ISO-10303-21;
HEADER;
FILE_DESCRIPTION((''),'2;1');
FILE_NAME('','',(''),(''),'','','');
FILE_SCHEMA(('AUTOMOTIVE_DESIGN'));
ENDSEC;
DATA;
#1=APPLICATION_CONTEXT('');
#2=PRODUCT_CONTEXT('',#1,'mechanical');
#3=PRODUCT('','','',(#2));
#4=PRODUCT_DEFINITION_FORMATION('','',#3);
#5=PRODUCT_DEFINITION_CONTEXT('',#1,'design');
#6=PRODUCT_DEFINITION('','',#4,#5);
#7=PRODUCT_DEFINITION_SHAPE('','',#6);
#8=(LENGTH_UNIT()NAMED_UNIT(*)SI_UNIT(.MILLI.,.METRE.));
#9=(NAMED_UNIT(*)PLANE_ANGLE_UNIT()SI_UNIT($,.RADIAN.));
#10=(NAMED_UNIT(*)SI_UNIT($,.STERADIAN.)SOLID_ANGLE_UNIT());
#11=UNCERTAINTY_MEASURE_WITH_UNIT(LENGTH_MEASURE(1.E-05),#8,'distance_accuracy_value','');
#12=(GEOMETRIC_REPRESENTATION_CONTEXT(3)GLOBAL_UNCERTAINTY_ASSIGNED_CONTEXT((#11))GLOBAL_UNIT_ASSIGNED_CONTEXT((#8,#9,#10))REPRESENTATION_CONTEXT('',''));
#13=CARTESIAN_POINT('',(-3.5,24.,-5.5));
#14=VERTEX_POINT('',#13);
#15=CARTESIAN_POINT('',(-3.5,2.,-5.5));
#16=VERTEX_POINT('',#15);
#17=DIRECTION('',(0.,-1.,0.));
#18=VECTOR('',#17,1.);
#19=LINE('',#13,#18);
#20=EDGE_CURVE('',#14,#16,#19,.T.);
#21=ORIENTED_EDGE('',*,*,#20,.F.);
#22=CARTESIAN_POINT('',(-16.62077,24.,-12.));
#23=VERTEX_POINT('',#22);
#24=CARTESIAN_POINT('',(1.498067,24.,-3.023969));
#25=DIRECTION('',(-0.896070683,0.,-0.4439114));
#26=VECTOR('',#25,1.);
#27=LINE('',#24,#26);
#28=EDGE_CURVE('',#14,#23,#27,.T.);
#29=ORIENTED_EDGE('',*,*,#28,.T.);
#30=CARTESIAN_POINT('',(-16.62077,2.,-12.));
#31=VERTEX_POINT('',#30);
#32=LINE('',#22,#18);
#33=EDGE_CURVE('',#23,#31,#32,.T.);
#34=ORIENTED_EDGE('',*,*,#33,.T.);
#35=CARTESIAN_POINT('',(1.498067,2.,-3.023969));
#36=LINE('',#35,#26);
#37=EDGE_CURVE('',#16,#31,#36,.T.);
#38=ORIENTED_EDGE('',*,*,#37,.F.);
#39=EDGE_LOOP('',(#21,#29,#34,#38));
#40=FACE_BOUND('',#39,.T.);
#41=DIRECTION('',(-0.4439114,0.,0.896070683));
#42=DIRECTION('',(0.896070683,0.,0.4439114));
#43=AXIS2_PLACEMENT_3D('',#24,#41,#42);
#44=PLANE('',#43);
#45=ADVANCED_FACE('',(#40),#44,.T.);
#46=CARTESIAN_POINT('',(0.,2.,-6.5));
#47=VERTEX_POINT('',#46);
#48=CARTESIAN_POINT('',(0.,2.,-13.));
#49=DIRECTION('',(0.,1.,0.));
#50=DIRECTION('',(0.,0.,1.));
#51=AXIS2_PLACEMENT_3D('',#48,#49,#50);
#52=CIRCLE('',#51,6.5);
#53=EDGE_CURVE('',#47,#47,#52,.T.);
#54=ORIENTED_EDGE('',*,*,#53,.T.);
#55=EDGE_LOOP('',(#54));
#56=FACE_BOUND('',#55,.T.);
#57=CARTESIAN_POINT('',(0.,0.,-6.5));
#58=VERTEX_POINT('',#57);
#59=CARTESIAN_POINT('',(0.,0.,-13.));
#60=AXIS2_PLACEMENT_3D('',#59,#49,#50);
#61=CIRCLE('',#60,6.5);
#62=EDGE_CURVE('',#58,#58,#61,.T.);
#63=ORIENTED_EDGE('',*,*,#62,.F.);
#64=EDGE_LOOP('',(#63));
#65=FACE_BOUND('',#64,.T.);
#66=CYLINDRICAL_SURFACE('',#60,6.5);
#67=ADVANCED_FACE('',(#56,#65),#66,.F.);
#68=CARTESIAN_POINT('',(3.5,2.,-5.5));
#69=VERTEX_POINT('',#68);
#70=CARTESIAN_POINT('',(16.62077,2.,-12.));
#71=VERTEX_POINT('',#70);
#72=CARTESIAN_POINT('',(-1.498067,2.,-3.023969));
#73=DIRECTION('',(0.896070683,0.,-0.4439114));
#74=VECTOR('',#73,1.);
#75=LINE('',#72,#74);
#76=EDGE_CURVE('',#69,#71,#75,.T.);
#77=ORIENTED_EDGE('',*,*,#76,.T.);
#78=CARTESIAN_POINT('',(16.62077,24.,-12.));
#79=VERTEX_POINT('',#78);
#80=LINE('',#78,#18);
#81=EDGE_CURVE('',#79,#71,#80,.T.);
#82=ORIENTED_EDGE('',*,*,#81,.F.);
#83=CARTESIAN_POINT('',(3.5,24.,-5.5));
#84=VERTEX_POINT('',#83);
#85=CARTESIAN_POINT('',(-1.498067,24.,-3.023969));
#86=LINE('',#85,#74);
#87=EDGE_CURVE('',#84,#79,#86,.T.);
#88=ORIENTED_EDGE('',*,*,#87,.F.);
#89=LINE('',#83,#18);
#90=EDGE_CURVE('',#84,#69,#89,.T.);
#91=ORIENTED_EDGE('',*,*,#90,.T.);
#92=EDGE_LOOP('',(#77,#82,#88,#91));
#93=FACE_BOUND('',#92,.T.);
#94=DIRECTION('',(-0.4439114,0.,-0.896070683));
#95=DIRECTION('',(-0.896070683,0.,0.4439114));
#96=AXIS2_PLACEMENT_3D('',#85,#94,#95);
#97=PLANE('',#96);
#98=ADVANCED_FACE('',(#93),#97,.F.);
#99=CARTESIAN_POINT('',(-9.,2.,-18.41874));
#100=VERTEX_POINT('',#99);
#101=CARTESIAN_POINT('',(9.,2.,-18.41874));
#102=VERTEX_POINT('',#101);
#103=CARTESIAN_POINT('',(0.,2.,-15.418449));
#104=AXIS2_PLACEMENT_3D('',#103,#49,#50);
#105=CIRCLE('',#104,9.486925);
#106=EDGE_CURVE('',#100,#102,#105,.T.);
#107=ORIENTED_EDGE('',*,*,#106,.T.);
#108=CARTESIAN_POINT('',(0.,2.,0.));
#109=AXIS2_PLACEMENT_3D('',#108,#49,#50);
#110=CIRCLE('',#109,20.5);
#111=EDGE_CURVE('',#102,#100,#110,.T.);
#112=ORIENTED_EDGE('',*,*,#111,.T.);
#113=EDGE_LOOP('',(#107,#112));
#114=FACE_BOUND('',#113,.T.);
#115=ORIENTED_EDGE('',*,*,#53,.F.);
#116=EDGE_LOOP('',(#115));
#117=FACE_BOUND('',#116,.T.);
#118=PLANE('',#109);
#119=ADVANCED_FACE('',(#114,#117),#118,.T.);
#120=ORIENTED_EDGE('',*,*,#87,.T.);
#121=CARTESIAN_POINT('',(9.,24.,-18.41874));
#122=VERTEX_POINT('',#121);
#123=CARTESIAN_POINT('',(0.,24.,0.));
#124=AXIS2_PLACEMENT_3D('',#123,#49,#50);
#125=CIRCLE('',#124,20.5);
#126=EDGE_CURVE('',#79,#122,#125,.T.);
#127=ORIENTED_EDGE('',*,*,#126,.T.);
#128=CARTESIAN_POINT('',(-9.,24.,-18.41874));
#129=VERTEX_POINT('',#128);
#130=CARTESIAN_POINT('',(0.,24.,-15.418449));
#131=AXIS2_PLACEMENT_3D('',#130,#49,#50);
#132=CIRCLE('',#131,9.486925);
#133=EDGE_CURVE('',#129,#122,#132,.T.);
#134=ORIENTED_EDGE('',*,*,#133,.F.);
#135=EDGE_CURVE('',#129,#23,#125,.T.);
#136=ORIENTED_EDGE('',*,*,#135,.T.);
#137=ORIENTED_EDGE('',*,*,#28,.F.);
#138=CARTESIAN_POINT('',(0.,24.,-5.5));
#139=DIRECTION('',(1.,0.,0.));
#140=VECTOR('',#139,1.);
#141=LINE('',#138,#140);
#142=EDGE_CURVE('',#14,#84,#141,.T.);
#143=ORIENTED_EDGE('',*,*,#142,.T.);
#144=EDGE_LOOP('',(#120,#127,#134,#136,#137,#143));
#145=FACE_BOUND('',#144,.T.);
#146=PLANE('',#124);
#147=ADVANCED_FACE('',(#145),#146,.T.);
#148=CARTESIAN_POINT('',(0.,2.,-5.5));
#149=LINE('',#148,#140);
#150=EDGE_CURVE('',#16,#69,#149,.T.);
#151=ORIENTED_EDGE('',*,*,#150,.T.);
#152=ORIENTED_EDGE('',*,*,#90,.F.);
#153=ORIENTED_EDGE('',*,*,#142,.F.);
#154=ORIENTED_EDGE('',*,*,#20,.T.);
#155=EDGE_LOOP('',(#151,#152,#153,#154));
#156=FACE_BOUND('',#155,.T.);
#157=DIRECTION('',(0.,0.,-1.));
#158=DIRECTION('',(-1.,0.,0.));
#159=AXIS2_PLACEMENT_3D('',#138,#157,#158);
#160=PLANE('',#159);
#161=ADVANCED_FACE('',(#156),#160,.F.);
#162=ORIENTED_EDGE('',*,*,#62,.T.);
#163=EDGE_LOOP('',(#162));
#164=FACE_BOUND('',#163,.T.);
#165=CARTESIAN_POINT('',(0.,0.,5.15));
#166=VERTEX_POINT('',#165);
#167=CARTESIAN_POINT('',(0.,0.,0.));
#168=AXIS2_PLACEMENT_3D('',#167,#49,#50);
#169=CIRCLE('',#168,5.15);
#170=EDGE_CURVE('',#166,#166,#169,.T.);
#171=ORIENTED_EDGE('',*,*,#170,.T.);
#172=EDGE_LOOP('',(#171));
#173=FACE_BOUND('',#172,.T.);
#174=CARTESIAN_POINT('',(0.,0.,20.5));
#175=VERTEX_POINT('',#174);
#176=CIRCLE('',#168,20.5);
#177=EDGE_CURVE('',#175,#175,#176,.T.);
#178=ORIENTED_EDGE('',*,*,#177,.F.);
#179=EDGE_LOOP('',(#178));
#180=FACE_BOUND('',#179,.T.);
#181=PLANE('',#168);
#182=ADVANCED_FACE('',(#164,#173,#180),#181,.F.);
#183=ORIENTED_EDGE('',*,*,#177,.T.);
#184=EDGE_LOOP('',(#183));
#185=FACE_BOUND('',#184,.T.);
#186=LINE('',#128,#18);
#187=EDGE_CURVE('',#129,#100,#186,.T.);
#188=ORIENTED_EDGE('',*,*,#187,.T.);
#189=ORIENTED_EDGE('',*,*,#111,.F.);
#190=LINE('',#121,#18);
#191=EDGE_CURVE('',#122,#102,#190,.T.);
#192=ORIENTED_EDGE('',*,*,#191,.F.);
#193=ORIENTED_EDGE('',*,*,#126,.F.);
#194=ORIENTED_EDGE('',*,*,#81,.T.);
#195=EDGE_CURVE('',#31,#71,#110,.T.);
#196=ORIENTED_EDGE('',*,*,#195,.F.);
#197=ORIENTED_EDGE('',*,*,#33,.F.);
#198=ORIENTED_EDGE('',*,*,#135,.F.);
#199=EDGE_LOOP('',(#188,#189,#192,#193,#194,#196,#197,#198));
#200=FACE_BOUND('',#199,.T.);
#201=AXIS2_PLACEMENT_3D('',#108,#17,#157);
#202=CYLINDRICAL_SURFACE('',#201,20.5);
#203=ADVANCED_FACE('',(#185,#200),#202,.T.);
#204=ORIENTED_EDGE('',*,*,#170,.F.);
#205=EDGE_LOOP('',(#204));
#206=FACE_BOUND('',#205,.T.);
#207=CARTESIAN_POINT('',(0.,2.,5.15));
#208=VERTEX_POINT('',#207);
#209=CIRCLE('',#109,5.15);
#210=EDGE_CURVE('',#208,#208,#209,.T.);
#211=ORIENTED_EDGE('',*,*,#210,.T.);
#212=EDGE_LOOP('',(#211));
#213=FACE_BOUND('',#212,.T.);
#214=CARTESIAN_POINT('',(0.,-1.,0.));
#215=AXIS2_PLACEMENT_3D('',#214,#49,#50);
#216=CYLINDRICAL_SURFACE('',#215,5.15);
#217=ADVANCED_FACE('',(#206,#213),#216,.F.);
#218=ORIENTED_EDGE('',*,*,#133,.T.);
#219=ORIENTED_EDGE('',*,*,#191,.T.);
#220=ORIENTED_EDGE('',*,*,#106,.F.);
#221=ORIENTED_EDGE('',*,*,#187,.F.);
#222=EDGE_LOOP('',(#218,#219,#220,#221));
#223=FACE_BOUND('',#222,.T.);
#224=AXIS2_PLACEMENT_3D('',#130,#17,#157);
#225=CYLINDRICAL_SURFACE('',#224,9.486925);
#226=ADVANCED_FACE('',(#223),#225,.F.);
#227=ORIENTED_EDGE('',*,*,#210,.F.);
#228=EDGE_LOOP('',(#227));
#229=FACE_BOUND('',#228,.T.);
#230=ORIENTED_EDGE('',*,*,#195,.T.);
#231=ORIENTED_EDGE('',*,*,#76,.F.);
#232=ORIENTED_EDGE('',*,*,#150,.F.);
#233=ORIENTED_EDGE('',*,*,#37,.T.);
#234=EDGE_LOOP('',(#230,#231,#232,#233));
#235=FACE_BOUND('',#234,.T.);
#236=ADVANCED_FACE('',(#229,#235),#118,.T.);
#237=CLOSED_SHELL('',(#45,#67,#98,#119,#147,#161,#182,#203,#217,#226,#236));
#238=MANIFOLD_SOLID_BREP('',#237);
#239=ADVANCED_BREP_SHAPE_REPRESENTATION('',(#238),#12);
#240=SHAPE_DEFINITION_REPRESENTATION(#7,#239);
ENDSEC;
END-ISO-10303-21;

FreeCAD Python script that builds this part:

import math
import FreeCAD as App
import Part
import Sketcher
from FreeCAD import Vector

doc = App.newDocument("Part")
body = doc.addObject("PartDesign::Body", "Body")

sketch1 = body.newObject("Sketcher::SketchObject", "Sketch")
sketch1.AttachmentSupport = (doc.getObject("XZ_Plane"), [""])
sketch1.MapMode = "FlatFace"
sketch1.addGeometry(Part.Circle(Vector(0, 0, 0), Vector(0, 0, 1), 20), False)
sketch1.addConstraint([
    Sketcher.Constraint("Coincident", 0, 3, -1, 1),
    Sketcher.Constraint("Diameter", 0, 41.0),
])
pad1 = body.newObject("PartDesign::Pad", "Pad")
pad1.Profile = sketch1
pad1.Length = 2
pad1.Reversed = True

sketch2 = body.newObject("Sketcher::SketchObject", "Sketch001")
sketch2.AttachmentSupport = (doc.getObject("XZ_Plane"), [""])
sketch2.MapMode = "FlatFace"
sketch2.AttachmentOffset = App.Placement(Vector(0, 0, -2), App.Rotation())
sketch2.addGeometry(Part.Circle(Vector(0, 0, 0), Vector(0, 0, 1), 5), False)
sketch2.addConstraint([
    Sketcher.Constraint("Coincident", 0, 3, -1, 1),
    Sketcher.Constraint("Diameter", 0, 10.3),
])
pocket1 = body.newObject("PartDesign::Pocket", "Pocket")
pocket1.Profile = sketch2
pocket1.Length = 3
pocket1.Reversed = True

sketch3 = body.newObject("Sketcher::SketchObject", "Sketch002")
sketch3.AttachmentSupport = (doc.getObject("XZ_Plane"), [""])
sketch3.MapMode = "FlatFace"
sketch3.AttachmentOffset = App.Placement(Vector(0, 0, -2), App.Rotation())
sketch3.addGeometry(Part.Circle(Vector(0, -13, 0), Vector(0, 0, 1), 6), False)
sketch3.addConstraint([
    Sketcher.Constraint("PointOnObject", 0, 3, -2),
    Sketcher.Constraint("Diameter", 0, 13.0),
    Sketcher.Constraint("DistanceY", 0, 3, -1, 1, 13.0),
])
pocket2 = body.newObject("PartDesign::Pocket", "Pocket001")
pocket2.Profile = sketch3
pocket2.Length = 2
pocket2.Reversed = True

sketch4 = body.newObject("Sketcher::SketchObject", "Sketch003")
sketch4.AttachmentSupport = (doc.getObject("XZ_Plane"), [""])
sketch4.MapMode = "FlatFace"
sketch4.AttachmentOffset = App.Placement(Vector(0, 0, -2), App.Rotation())
sketch4.addGeometry([
    Part.LineSegment(Vector(-17, -12, 0), Vector(-4, -6, 0)),
    Part.LineSegment(Vector(-4, -6, 0), Vector(4, -6, 0)),
    Part.LineSegment(Vector(4, -6, 0), Vector(17, -12, 0)),
    Part.ArcOfCircle(Part.Circle(Vector(0, 0, 0), Vector(0, 0, 1), 20), math.radians(-64), math.radians(-36)),
    Part.ArcOfCircle(Part.Circle(Vector(0, -15, 0), Vector(0, 0, 1), 9), math.radians(-18), math.radians(198)),
    Part.ArcOfCircle(Part.Circle(Vector(0, 0, 0), Vector(0, 0, 1), 20), math.radians(-144), math.radians(-116)),
], False)
sketch4.addConstraint([
    Sketcher.Constraint("Coincident", 0, 2, 1, 1),
    Sketcher.Constraint("Coincident", 1, 2, 2, 1),
    Sketcher.Constraint("Coincident", 2, 2, 3, 2),
    Sketcher.Constraint("Coincident", 3, 1, 4, 1),
    Sketcher.Constraint("Coincident", 4, 2, 5, 2),
    Sketcher.Constraint("Coincident", 5, 1, 0, 1),
    Sketcher.Constraint("Horizontal", 1),
    Sketcher.Constraint("Coincident", 3, 3, -1, 1),
    Sketcher.Constraint("Coincident", 5, 3, -1, 1),
    Sketcher.Constraint("Equal", 3, 5),
    Sketcher.Constraint("PointOnObject", 4, 3, -2),
    Sketcher.Constraint("Horizontal", 2, 2, 5, 1),
    Sketcher.Constraint("Equal", 0, 2),
    Sketcher.Constraint("Radius", 3, 20.5),
    Sketcher.Constraint("DistanceX", 1, 1, 1, 2, 7.0),
    Sketcher.Constraint("DistanceY", 2, 2, -1, 1, 12.0),
    Sketcher.Constraint("DistanceX", -1, 1, 3, 1, 9.0),
    Sketcher.Constraint("DistanceY", 0, 2, -1, 1, 5.5),
    Sketcher.Constraint("Radius", 4, 9.486925),
])
pad2 = body.newObject("PartDesign::Pad", "Pad001")
pad2.Profile = sketch4
pad2.Length = 22
pad2.Reversed = True

doc.recompute()
